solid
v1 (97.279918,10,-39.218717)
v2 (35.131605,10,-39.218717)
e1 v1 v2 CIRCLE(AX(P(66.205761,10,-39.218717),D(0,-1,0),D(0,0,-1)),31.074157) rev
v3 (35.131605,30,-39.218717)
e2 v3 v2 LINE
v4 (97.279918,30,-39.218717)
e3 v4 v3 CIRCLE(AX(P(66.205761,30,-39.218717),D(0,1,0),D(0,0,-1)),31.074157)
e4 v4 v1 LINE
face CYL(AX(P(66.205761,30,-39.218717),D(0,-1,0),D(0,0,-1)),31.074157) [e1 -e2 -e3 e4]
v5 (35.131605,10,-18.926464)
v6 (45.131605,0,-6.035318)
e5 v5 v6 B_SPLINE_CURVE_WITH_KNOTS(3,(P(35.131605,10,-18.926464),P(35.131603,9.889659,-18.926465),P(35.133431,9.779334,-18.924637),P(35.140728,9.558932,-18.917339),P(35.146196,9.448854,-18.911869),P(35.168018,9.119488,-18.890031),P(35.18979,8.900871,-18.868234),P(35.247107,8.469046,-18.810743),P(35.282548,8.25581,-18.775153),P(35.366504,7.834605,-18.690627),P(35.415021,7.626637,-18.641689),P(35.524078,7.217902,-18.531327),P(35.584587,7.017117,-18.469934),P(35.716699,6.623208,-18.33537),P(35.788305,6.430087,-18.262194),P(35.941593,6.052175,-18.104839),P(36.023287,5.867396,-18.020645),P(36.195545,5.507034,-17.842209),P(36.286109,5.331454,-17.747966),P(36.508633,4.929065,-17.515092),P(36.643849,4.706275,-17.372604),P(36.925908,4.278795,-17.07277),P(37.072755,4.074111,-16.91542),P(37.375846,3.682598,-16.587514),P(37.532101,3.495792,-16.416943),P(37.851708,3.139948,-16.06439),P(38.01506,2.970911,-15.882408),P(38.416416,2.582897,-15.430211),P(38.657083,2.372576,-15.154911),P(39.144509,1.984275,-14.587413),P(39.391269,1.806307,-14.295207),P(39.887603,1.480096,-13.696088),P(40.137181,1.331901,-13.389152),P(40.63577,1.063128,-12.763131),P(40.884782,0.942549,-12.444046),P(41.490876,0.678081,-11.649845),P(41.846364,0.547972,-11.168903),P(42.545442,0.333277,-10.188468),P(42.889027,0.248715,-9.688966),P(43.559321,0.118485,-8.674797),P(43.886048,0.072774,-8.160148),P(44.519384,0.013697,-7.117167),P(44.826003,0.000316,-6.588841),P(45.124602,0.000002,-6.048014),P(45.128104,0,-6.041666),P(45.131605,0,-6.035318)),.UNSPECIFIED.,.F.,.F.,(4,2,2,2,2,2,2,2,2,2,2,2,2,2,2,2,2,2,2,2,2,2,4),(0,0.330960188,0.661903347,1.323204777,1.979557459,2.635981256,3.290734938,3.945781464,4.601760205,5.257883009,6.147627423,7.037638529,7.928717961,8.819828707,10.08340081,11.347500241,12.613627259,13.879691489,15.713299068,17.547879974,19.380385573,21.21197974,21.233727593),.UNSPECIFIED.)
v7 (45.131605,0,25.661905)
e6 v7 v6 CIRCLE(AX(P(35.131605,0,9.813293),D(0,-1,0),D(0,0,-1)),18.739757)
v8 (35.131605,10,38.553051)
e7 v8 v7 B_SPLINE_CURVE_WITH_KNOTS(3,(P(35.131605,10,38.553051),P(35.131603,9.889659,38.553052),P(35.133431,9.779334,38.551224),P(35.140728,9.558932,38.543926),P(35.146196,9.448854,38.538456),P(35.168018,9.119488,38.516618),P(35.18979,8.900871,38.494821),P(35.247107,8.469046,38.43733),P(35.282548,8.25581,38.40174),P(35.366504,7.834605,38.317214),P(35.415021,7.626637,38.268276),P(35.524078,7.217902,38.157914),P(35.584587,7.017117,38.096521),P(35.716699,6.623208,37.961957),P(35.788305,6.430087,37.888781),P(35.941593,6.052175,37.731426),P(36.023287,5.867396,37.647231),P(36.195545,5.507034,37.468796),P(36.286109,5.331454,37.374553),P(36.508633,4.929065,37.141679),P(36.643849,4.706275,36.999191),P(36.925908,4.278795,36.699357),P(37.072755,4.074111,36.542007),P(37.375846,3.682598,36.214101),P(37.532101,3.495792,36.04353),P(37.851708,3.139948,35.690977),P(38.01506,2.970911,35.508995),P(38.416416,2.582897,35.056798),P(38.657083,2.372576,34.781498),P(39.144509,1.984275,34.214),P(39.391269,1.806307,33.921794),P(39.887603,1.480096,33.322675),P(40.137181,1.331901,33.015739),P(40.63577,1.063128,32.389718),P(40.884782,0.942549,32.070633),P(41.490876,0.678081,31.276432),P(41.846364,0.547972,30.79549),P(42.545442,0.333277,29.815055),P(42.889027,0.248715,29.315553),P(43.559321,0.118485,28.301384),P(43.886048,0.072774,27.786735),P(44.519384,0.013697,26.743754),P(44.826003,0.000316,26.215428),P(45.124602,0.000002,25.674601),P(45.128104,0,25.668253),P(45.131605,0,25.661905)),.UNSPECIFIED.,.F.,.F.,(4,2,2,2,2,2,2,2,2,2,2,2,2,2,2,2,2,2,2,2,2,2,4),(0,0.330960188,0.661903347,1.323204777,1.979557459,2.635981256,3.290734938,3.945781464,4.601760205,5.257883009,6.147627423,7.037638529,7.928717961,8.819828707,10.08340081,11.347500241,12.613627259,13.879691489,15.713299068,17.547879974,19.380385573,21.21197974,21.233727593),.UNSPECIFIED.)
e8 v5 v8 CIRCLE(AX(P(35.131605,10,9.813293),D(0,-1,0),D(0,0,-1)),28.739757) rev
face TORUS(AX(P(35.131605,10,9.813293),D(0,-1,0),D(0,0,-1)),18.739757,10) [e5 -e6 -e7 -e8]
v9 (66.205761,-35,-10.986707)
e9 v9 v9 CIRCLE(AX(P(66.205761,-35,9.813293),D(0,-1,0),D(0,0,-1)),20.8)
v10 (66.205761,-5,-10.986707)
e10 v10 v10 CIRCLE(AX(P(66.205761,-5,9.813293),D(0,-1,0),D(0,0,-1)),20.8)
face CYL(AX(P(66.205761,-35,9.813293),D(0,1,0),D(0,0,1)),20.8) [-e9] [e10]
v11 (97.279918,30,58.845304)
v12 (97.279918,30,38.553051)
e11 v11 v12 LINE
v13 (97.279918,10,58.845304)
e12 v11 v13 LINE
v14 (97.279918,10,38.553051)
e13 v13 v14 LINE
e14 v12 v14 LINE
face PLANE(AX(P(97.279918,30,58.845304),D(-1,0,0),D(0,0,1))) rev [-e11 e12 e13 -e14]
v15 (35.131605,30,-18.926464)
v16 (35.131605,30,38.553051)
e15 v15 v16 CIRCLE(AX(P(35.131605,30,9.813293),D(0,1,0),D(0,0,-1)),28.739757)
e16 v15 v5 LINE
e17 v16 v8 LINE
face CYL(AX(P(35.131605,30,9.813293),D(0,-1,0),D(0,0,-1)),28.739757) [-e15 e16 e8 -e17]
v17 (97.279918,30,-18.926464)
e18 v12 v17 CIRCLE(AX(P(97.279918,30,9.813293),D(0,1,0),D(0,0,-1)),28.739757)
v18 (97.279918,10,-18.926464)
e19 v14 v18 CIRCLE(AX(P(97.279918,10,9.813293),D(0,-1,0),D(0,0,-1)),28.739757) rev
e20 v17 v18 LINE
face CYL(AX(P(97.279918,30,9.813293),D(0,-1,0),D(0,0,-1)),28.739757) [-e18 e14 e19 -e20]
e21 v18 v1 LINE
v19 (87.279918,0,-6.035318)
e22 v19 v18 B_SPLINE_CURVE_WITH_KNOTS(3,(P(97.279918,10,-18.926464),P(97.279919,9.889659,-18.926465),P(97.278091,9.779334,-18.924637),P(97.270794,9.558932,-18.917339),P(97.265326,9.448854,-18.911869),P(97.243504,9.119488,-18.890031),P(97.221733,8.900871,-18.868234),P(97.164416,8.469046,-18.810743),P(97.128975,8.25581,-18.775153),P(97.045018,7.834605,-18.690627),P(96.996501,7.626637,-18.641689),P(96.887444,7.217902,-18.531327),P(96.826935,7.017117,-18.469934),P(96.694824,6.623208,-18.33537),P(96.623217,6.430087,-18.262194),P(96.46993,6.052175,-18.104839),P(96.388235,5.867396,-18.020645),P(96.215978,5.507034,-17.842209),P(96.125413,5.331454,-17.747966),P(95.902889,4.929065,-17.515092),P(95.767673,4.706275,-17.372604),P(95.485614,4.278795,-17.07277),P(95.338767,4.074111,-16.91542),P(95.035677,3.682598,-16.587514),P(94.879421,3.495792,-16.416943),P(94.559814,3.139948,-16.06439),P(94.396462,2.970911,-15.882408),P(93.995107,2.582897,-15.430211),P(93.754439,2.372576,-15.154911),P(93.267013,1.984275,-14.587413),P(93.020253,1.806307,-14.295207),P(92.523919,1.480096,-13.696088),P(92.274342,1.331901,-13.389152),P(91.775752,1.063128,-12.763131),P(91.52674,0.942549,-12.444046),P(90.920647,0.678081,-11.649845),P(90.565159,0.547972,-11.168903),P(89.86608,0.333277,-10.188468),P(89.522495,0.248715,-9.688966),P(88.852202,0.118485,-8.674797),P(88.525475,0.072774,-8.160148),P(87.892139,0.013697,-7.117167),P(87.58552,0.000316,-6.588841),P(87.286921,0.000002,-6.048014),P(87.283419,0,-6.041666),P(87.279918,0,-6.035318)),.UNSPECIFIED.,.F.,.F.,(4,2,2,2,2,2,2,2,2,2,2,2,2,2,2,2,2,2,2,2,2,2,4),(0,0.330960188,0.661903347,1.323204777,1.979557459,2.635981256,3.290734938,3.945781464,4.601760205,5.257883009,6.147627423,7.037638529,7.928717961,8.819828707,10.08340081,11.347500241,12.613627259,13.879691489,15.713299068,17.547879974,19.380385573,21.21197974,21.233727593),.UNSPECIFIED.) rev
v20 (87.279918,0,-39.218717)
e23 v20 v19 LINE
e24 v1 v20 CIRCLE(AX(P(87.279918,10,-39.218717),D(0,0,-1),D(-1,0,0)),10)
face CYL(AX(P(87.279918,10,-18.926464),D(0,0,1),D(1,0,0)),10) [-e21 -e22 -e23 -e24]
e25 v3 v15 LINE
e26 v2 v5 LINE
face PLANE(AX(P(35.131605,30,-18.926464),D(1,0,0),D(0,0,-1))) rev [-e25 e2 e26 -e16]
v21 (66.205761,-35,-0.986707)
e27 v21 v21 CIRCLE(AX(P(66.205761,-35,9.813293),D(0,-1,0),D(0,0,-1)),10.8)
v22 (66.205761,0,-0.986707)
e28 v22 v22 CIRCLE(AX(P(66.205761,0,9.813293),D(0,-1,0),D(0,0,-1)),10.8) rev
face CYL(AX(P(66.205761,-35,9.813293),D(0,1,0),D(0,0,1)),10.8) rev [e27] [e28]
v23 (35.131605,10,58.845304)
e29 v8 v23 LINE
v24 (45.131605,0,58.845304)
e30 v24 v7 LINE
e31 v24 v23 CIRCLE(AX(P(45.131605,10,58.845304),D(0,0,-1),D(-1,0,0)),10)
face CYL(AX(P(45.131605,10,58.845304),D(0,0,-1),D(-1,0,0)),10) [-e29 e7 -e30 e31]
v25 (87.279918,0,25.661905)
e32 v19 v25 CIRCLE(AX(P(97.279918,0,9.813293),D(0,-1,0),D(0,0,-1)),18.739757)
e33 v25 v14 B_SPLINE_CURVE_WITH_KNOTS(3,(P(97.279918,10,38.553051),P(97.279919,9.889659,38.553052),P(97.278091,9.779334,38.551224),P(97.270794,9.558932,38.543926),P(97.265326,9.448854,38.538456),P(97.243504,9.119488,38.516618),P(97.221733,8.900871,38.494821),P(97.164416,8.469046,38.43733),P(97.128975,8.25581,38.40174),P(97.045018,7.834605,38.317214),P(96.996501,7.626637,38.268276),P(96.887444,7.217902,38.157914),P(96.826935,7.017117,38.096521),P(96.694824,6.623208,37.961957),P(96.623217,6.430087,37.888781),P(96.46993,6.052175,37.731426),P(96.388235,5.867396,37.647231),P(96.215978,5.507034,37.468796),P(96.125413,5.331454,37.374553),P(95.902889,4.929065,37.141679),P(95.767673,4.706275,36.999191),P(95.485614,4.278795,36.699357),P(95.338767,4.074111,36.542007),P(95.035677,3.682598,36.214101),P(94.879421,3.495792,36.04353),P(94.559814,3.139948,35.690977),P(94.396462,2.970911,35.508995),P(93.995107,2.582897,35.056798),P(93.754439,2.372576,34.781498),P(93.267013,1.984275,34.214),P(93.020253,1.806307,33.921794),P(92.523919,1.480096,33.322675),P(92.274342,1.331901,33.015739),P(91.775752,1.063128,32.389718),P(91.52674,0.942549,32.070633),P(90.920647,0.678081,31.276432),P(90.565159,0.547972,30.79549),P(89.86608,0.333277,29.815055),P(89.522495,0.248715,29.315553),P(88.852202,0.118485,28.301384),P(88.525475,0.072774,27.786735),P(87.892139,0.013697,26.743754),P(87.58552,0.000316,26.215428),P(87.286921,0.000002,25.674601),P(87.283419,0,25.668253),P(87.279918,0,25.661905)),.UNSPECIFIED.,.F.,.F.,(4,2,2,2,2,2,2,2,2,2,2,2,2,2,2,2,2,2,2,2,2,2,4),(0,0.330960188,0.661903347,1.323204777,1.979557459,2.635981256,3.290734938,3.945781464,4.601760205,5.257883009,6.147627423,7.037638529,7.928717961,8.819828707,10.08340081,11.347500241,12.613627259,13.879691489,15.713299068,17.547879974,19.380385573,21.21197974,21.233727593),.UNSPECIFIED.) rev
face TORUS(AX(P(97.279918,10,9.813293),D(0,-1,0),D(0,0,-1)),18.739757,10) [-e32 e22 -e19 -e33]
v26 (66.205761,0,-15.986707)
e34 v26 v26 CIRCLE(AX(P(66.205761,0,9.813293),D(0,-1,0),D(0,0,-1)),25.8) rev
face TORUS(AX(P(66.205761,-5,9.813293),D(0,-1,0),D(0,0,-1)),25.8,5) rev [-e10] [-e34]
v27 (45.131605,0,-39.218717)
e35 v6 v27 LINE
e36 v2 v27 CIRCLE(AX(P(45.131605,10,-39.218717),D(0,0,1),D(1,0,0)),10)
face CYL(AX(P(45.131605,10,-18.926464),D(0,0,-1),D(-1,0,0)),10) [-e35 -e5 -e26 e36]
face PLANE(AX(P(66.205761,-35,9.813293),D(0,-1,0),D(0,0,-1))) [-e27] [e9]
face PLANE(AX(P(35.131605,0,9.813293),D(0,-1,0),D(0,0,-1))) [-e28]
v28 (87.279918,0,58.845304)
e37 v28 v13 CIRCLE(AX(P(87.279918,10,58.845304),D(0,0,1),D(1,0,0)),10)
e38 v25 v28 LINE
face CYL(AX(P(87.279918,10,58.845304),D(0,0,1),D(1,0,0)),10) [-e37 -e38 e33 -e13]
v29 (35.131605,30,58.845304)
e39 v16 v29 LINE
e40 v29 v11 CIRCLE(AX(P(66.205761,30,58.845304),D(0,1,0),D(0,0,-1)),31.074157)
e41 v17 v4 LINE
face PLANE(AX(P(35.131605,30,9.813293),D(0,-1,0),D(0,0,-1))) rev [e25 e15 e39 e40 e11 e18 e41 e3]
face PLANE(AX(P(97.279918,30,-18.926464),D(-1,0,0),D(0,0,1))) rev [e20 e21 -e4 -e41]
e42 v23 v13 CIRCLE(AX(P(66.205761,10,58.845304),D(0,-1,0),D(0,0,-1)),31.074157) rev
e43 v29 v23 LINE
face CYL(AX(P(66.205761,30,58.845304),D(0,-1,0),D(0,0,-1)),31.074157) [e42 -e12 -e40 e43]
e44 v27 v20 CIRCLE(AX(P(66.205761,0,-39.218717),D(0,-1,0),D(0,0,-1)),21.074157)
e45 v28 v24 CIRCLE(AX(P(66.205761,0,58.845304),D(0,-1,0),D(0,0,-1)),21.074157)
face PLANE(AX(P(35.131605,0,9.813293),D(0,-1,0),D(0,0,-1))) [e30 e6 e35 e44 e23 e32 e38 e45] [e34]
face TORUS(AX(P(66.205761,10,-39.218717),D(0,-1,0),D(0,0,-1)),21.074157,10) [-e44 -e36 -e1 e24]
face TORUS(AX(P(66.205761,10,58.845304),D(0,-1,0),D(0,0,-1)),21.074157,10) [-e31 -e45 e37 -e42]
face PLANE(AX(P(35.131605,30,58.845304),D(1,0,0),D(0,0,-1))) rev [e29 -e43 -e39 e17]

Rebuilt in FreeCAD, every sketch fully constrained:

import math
import FreeCAD as App
import Part
import Sketcher
from FreeCAD import Vector
Q = App.Units.Quantity


def edges_at(feature, points):
    """Names of the edges that pass closest to the given points."""
    edges = feature.Shape.Edges
    near = lambda p: min(range(len(edges)), key=lambda i: edges[i].distToShape(Part.Vertex(*p))[0])
    return sorted({f"Edge{near(p) + 1}" for p in points})

doc = App.newDocument("Part")
body = doc.addObject("PartDesign::Body", "Body")

# Sketch on XZ plane
sketch1 = body.newObject("Sketcher::SketchObject", "Sketch")
sketch1.AttachmentSupport = (doc.getObject("XZ_Plane"), [""])
sketch1.MapMode = "FlatFace"
sketch1.addGeometry([
    Part.LineSegment(Vector(35.131605, -39.218717, 0), Vector(35.131605, -18.926464, 0)),  # 0
    Part.ArcOfCircle(Part.Circle(Vector(35.131605, 9.813293, 0), Vector(0, 0, 1), 28.739757), math.radians(90), math.radians(270)),  # 1
    Part.LineSegment(Vector(35.131605, 38.553051, 0), Vector(35.131605, 58.845304, 0)),  # 2
    Part.ArcOfCircle(Part.Circle(Vector(66.205761, 58.845304, 0), Vector(0, 0, 1), 31.074157), math.radians(0), math.radians(180)),  # 3
    Part.LineSegment(Vector(97.279918, 58.845304, 0), Vector(97.279918, 38.553051, 0)),  # 4
    Part.ArcOfCircle(Part.Circle(Vector(97.279918, 9.813293, 0), Vector(0, 0, 1), 28.739757), math.radians(-90), math.radians(90)),  # 5
    Part.LineSegment(Vector(97.279918, -18.926464, 0), Vector(97.279918, -39.218717, 0)),  # 6
    Part.ArcOfCircle(Part.Circle(Vector(66.205761, -39.218717, 0), Vector(0, 0, 1), 31.074157), math.radians(180), math.radians(360)),  # 7
], False)
sketch1.addConstraint([
    Sketcher.Constraint("Coincident", 0, 2, 1, 2),
    Sketcher.Constraint("Coincident", 1, 1, 2, 1),
    Sketcher.Constraint("Tangent", 2, 2, 3, 2),
    Sketcher.Constraint("Tangent", 3, 1, 4, 1),
    Sketcher.Constraint("Coincident", 4, 2, 5, 2),
    Sketcher.Constraint("Coincident", 5, 1, 6, 1),
    Sketcher.Constraint("Tangent", 6, 2, 7, 2),
    Sketcher.Constraint("Tangent", 7, 1, 0, 1),
    Sketcher.Constraint("Vertical", 0),
    Sketcher.Constraint("Vertical", 2),
    Sketcher.Constraint("Vertical", 4),
    Sketcher.Constraint("Vertical", 6),
    Sketcher.Constraint("Equal", 1, 5),
    Sketcher.Constraint("Equal", 3, 7),
    Sketcher.Constraint("Horizontal", 1, 3, 5, 3),
    Sketcher.Constraint("Vertical", 3, 3, 7, 3),
    Sketcher.Constraint("Vertical", 1, 3, 0, 2),
    Sketcher.Constraint("Vertical", 5, 3, 3, 1),
    Sketcher.Constraint("Equal", 0, 2),
    Sketcher.Constraint("Radius", 1, Q("28.739757 mm")),
    Sketcher.Constraint("Radius", 3, Q("31.074157 mm")),
    Sketcher.Constraint("DistanceY", 0, 1, 0, 2, Q("20.292253 mm")),
    Sketcher.Constraint("DistanceX", -1, 1, 3, 3, Q("66.205761 mm")),
    Sketcher.Constraint("DistanceY", -1, 1, 1, 1, Q("38.553051 mm")),
])
pad1 = body.newObject("PartDesign::Pad", "Pad")
pad1.Profile = sketch1
pad1.Length = 30
pad1.Reversed = True

# Sketch on XZ plane
sketch2 = body.newObject("Sketcher::SketchObject", "Sketch001")
sketch2.AttachmentSupport = (doc.getObject("XZ_Plane"), [""])
sketch2.MapMode = "FlatFace"
sketch2.addGeometry([
    Part.Circle(Vector(66.205761, 9.813293, 0), Vector(0, 0, 1), 20.8),
    Part.Circle(Vector(66.205761, 9.813293, 0), Vector(0, 0, 1), 10.8),
], False)
sketch2.addConstraint([
    Sketcher.Constraint("Coincident", 1, 3, 0, 3),
    Sketcher.Constraint("Diameter", 0, Q("41.6 mm")),
    Sketcher.Constraint("Diameter", 1, Q("21.6 mm")),
    Sketcher.Constraint("DistanceX", -1, 1, 0, 3, Q("66.205761 mm")),
    Sketcher.Constraint("DistanceY", -1, 1, 0, 3, Q("9.813293 mm")),
])
pad2 = body.newObject("PartDesign::Pad", "Pad001")
pad2.Profile = sketch2
pad2.Length = 35
doc.recompute()

fillet = body.newObject("PartDesign::Fillet", "Fillet")
fillet.Base = (pad2, edges_at(pad2, [(66.206, 0, 30.613)]))
fillet.Radius = 5
doc.recompute()

fillet2 = body.newObject("PartDesign::Fillet", "Fillet001")
fillet2.Base = (fillet, edges_at(fillet, [
    (35.132, 0, 48.699),
    (6.392, 0, 9.813),
    (35.132, 0, -29.073),
    (66.206, 0, -70.293),
    (97.28, 0, -29.073),
    (126.02, 0, 9.813),
    (97.28, 0, 48.699),
    (66.206, 0, 89.919),
]))
fillet2.Radius = 10

doc.recompute()
